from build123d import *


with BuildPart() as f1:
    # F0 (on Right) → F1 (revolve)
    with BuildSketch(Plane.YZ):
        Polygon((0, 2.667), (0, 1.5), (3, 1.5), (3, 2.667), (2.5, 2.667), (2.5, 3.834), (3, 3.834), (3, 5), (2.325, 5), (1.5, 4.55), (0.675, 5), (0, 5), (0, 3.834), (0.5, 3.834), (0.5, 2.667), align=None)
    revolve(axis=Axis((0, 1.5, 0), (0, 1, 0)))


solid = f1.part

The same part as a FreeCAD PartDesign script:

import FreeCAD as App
import Part
import Sketcher
from FreeCAD import Vector
Q = App.Units.Quantity


def add_polygon(sketch, points):
    """Adds a closed chain of lines whose ends are joined by coincident constraints."""
    first, n = sketch.GeometryCount, len(points)
    for a, b in zip(points, points[1:] + points[:1]):
        sketch.addGeometry(Part.LineSegment(App.Vector(*a, 0), App.Vector(*b, 0)), False)
    for i in range(n):
        sketch.addConstraint(Sketcher.Constraint("Coincident", first + i, 2, first + (i + 1) % n, 1))

doc = App.newDocument("Part")
body = doc.addObject("PartDesign::Body", "Body")

sketch1 = body.newObject("Sketcher::SketchObject", "Sketch")
sketch1.AttachmentSupport = (doc.getObject("YZ_Plane"), [""])
sketch1.MapMode = "FlatFace"
add_polygon(sketch1, [(0, 2.7), (0, 1.5), (3, 1.5), (3, 2.7), (2.5, 2.7), (2.5, 3.8), (3, 3.8), (3, 5), (2.3, 5), (1.5, 4.5), (0.7, 5), (0, 5), (0, 3.8), (0.5, 3.8), (0.5, 2.7)])
sketch1.addConstraint(Sketcher.Constraint("Vertical", 0))
sketch1.addConstraint(Sketcher.Constraint("Horizontal", 1))
sketch1.addConstraint(Sketcher.Constraint("Vertical", 2))
sketch1.addConstraint(Sketcher.Constraint("Horizontal", 3))
sketch1.addConstraint(Sketcher.Constraint("Vertical", 4))
sketch1.addConstraint(Sketcher.Constraint("Horizontal", 5))
sketch1.addConstraint(Sketcher.Constraint("Vertical", 6))
sketch1.addConstraint(Sketcher.Constraint("Horizontal", 7))
sketch1.addConstraint(Sketcher.Constraint("Horizontal", 10))
sketch1.addConstraint(Sketcher.Constraint("Vertical", 11))
sketch1.addConstraint(Sketcher.Constraint("Horizontal", 12))
sketch1.addConstraint(Sketcher.Constraint("Vertical", 13))
sketch1.addConstraint(Sketcher.Constraint("Horizontal", 14))
sketch1.addConstraint(Sketcher.Constraint("PointOnObject", 0, 2, -2))
sketch1.addConstraint(Sketcher.Constraint("PointOnObject", 10, 2, -2))
sketch1.addConstraint(Sketcher.Constraint("Horizontal", 7, 2, 9, 2))
sketch1.addConstraint(Sketcher.Constraint("Horizontal", 5, 2, 11, 2))
sketch1.addConstraint(Sketcher.Constraint("Horizontal", 3, 2, 13, 2))
sketch1.addConstraint(Sketcher.Constraint("Vertical", 2, 2, 5, 2))
sketch1.addConstraint(Sketcher.Constraint("Equal", 7, 10))
sketch1.addConstraint(Sketcher.Constraint("Equal", 5, 12))
sketch1.addConstraint(Sketcher.Constraint("Equal", 2, 4))
sketch1.addConstraint(Sketcher.Constraint("Equal", 8, 9))
sketch1.addConstraint(Sketcher.Constraint("DistanceX", 1, 1, 1, 2, Q("3 mm")))
sketch1.addConstraint(Sketcher.Constraint("DistanceX", 3, 2, 3, 1, Q("0.5 mm")))
sketch1.addConstraint(Sketcher.Constraint("DistanceY", -1, 1, 6, 2, Q("5 mm")))
sketch1.addConstraint(Sketcher.Constraint("DistanceY", -1, 1, 0, 2, Q("1.5 mm")))
sketch1.addConstraint(Sketcher.Constraint("DistanceX", 7, 2, 7, 1, Q("0.675 mm")))
sketch1.addConstraint(Sketcher.Constraint("DistanceY", 0, 2, 0, 1, Q("1.167 mm")))
sketch1.addConstraint(Sketcher.Constraint("DistanceY", -1, 1, 8, 2, Q("4.55 mm")))
revolution = body.newObject("PartDesign::Revolution", "Revolution")
revolution.Profile = sketch1
revolution.ReferenceAxis = (sketch1, ["H_Axis"])
revolution.Angle = 360

doc.recompute()
